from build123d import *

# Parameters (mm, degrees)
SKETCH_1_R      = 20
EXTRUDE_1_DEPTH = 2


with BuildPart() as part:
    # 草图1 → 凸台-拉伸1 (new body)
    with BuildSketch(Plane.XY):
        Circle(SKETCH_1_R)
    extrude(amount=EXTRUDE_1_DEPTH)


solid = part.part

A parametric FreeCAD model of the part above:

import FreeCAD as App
import Part
import Sketcher

V = App.Vector
Q = App.Units.Quantity

doc = App.newDocument("Part")
body = doc.addObject("PartDesign::Body", "Body")

# Sketch on XY plane
sketch1 = body.newObject("Sketcher::SketchObject", "Sketch")
sketch1.AttachmentSupport = (doc.getObject("XY_Plane"), [""])
sketch1.MapMode = "FlatFace"
sketch1.addGeometry(Part.Circle(V(0, 0, 0), V(0, 0, 1), 20), False)
sketch1.addConstraint(Sketcher.Constraint("Coincident", 0, 3, -1, 1))
sketch1.addConstraint(Sketcher.Constraint("Diameter", 0, Q("40 mm")))
pad1 = body.newObject("PartDesign::Pad", "Pad")
pad1.Profile = sketch1
pad1.Length = 2

doc.recompute()
